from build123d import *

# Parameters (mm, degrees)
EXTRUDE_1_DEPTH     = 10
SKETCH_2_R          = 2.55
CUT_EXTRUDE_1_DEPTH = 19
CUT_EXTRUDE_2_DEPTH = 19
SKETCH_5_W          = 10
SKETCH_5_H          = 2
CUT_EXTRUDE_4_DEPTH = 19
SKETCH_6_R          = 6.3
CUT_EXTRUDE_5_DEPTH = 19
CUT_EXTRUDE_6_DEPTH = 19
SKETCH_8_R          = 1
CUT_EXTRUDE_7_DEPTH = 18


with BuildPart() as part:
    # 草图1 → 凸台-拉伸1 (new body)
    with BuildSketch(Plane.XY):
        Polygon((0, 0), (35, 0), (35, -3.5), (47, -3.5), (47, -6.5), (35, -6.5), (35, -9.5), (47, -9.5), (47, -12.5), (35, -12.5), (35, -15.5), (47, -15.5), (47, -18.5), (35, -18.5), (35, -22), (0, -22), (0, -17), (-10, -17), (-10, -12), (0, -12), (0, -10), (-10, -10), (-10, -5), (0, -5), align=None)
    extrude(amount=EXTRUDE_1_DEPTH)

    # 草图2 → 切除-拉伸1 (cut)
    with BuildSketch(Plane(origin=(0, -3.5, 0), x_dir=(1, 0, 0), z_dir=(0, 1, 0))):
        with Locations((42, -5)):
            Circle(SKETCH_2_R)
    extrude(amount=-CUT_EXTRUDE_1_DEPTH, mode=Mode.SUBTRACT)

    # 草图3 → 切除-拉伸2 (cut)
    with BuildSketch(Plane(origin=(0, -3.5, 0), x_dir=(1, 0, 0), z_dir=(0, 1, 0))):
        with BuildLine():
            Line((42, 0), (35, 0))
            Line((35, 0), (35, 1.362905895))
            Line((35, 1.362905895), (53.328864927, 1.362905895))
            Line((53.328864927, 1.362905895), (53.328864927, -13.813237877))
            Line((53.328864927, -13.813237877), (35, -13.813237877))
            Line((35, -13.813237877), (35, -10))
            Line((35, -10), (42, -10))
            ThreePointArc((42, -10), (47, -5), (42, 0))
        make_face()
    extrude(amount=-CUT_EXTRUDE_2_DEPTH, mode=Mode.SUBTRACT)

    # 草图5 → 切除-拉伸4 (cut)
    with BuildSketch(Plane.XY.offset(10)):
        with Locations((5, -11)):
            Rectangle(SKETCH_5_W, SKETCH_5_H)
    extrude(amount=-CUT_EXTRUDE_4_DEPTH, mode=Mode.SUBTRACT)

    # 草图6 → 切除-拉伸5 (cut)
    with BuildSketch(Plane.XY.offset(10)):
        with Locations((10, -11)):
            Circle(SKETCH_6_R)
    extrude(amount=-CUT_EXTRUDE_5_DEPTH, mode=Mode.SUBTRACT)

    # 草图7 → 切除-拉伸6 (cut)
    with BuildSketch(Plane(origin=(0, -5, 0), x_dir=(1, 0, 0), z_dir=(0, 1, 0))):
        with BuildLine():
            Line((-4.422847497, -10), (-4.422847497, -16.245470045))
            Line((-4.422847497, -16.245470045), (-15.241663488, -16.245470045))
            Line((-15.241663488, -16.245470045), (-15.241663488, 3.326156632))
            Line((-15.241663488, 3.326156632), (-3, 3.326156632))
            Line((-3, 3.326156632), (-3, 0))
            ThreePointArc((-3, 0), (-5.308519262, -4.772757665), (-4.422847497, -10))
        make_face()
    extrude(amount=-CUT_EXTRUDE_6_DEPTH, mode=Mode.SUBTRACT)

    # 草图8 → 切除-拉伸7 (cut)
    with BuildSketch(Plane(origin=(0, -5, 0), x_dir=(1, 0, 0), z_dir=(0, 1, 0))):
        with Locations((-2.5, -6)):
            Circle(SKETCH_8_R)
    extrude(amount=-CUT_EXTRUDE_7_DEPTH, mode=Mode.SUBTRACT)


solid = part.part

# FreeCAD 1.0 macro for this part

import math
import FreeCAD as App
import Part
import Sketcher

V = App.Vector
Q = App.Units.Quantity


def add_polygon(sketch, points):
    """Adds a closed chain of lines whose ends are joined by coincident constraints."""
    first, n = sketch.GeometryCount, len(points)
    for a, b in zip(points, points[1:] + points[:1]):
        sketch.addGeometry(Part.LineSegment(App.Vector(*a, 0), App.Vector(*b, 0)), False)
    for i in range(n):
        sketch.addConstraint(Sketcher.Constraint("Coincident", first + i, 2, first + (i + 1) % n, 1))

doc = App.newDocument("Part")
body = doc.addObject("PartDesign::Body", "Body")

# Sketch on XY plane
sketch1 = doc.addObject("Sketcher::SketchObject", "Sketch")
body.addObject(sketch1)
sketch1.AttachmentSupport = (doc.XY_Plane, [""])
sketch1.MapMode = "FlatFace"
add_polygon(sketch1, [(35, 0), (0, 0), (0, -5), (-10, -5), (-10, -10), (0, -10), (0, -12), (-10, -12), (-10, -17), (0, -17), (0, -22), (35, -22), (35, -18.5), (47, -18.5), (47, -15.5), (35, -15.5), (35, -12.5), (47, -12.5), (47, -9.5), (35, -9.5), (35, -6.5), (47, -6.5), (47, -3.5), (35, -3.5)])  # lines 0-23
sketch1.addConstraint(Sketcher.Constraint("Horizontal", 0))
sketch1.addConstraint(Sketcher.Constraint("Vertical", 1))
sketch1.addConstraint(Sketcher.Constraint("Horizontal", 2))
sketch1.addConstraint(Sketcher.Constraint("Vertical", 3))
sketch1.addConstraint(Sketcher.Constraint("Horizontal", 4))
sketch1.addConstraint(Sketcher.Constraint("Vertical", 5))
sketch1.addConstraint(Sketcher.Constraint("Horizontal", 6))
sketch1.addConstraint(Sketcher.Constraint("Vertical", 7))
sketch1.addConstraint(Sketcher.Constraint("Horizontal", 8))
sketch1.addConstraint(Sketcher.Constraint("Vertical", 9))
sketch1.addConstraint(Sketcher.Constraint("Horizontal", 10))
sketch1.addConstraint(Sketcher.Constraint("Vertical", 11))
sketch1.addConstraint(Sketcher.Constraint("Horizontal", 12))
sketch1.addConstraint(Sketcher.Constraint("Vertical", 13))
sketch1.addConstraint(Sketcher.Constraint("Horizontal", 14))
sketch1.addConstraint(Sketcher.Constraint("Vertical", 15))
sketch1.addConstraint(Sketcher.Constraint("Horizontal", 16))
sketch1.addConstraint(Sketcher.Constraint("Vertical", 17))
sketch1.addConstraint(Sketcher.Constraint("Horizontal", 18))
sketch1.addConstraint(Sketcher.Constraint("Vertical", 19))
sketch1.addConstraint(Sketcher.Constraint("Horizontal", 20))
sketch1.addConstraint(Sketcher.Constraint("Vertical", 21))
sketch1.addConstraint(Sketcher.Constraint("Horizontal", 22))
sketch1.addConstraint(Sketcher.Constraint("Vertical", 23))
sketch1.addConstraint(Sketcher.Constraint("Coincident", 0, 2, -1, 1))
sketch1.addConstraint(Sketcher.Constraint("PointOnObject", 4, 2, -2))
sketch1.addConstraint(Sketcher.Constraint("PointOnObject", 8, 2, -2))
sketch1.addConstraint(Sketcher.Constraint("Vertical", 3, 2, 6, 2))
sketch1.addConstraint(Sketcher.Constraint("Vertical", 11, 2, 14, 2))
sketch1.addConstraint(Sketcher.Constraint("Vertical", 13, 2, 16, 2))
sketch1.addConstraint(Sketcher.Constraint("Vertical", 15, 2, 18, 2))
sketch1.addConstraint(Sketcher.Constraint("Vertical", 17, 2, 20, 2))
sketch1.addConstraint(Sketcher.Constraint("Vertical", 19, 2, 22, 2))
sketch1.addConstraint(Sketcher.Constraint("Equal", 1, 3))
sketch1.addConstraint(Sketcher.Constraint("Equal", 3, 7))
sketch1.addConstraint(Sketcher.Constraint("Equal", 7, 9))
sketch1.addConstraint(Sketcher.Constraint("Equal", 13, 15))
sketch1.addConstraint(Sketcher.Constraint("Equal", 15, 17))
sketch1.addConstraint(Sketcher.Constraint("Equal", 17, 19))
sketch1.addConstraint(Sketcher.Constraint("Equal", 19, 21))
sketch1.addConstraint(Sketcher.Constraint("Equal", 11, 23))
sketch1.addConstraint(Sketcher.Constraint("DistanceX", 0, 2, 0, 1, Q("35 mm")))
sketch1.addConstraint(Sketcher.Constraint("DistanceX", 2, 2, 2, 1, Q("10 mm")))
sketch1.addConstraint(Sketcher.Constraint("DistanceX", 12, 1, 12, 2, Q("12 mm")))
sketch1.addConstraint(Sketcher.Constraint("DistanceY", 1, 2, 1, 1, Q("5 mm")))
sketch1.addConstraint(Sketcher.Constraint("DistanceY", 5, 2, 5, 1, Q("2 mm")))
sketch1.addConstraint(Sketcher.Constraint("DistanceY", 13, 1, 13, 2, Q("3 mm")))
pad1 = doc.addObject("PartDesign::Pad", "Pad")
body.addObject(pad1)
pad1.Profile = sketch1
pad1.Length = 10

# Sketch on XZ plane
sketch2 = doc.addObject("Sketcher::SketchObject", "Sketch001")
body.addObject(sketch2)
sketch2.AttachmentSupport = (doc.XZ_Plane, [""])
sketch2.MapMode = "FlatFace"
sketch2.AttachmentOffset = App.Placement(V(0, 0, 3.5), App.Rotation())
sketch2.addGeometry(Part.Circle(V(42, 5, 0), V(0, 0, 1), 2.55), False)
sketch2.addConstraint(Sketcher.Constraint("Diameter", 0, Q("5.1 mm")))
sketch2.addConstraint(Sketcher.Constraint("DistanceX", -1, 1, 0, 3, Q("42 mm")))
sketch2.addConstraint(Sketcher.Constraint("DistanceY", -1, 1, 0, 3, Q("5 mm")))
pocket1 = doc.addObject("PartDesign::Pocket", "Pocket")
body.addObject(pocket1)
pocket1.Profile = sketch2
pocket1.Length = 19
pocket1.Reversed = True

# Sketch on XZ plane
sketch3 = doc.addObject("Sketcher::SketchObject", "Sketch002")
body.addObject(sketch3)
sketch3.AttachmentSupport = (doc.XZ_Plane, [""])
sketch3.MapMode = "FlatFace"
sketch3.AttachmentOffset = App.Placement(V(0, 0, 3.5), App.Rotation())
sketch3.addGeometry(Part.LineSegment(V(35, 0, 0), V(42, 0, 0)), False)
sketch3.addGeometry(Part.ArcOfCircle(Part.Circle(V(42, 5, 0), V(0, 0, 1), 5), math.radians(-90), math.radians(90)), False)
sketch3.addGeometry(Part.LineSegment(V(42, 10, 0), V(35, 10, 0)), False)
sketch3.addGeometry(Part.LineSegment(V(35, 10, 0), V(35, 13.813238, 0)), False)
sketch3.addGeometry(Part.LineSegment(V(35, 13.813238, 0), V(53.328865, 13.813238, 0)), False)
sketch3.addGeometry(Part.LineSegment(V(53.328865, 13.813238, 0), V(53.328865, -1.362906, 0)), False)
sketch3.addGeometry(Part.LineSegment(V(53.328865, -1.362906, 0), V(35, -1.362906, 0)), False)
sketch3.addGeometry(Part.LineSegment(V(35, -1.362906, 0), V(35, 0, 0)), False)
sketch3.addConstraint(Sketcher.Constraint("Tangent", 0, 2, 1, 1))
sketch3.addConstraint(Sketcher.Constraint("Tangent", 1, 2, 2, 1))
sketch3.addConstraint(Sketcher.Constraint("Coincident", 2, 2, 3, 1))
sketch3.addConstraint(Sketcher.Constraint("Coincident", 3, 2, 4, 1))
sketch3.addConstraint(Sketcher.Constraint("Coincident", 4, 2, 5, 1))
sketch3.addConstraint(Sketcher.Constraint("Coincident", 5, 2, 6, 1))
sketch3.addConstraint(Sketcher.Constraint("Coincident", 6, 2, 7, 1))
sketch3.addConstraint(Sketcher.Constraint("Coincident", 7, 2, 0, 1))
sketch3.addConstraint(Sketcher.Constraint("Horizontal", 0))
sketch3.addConstraint(Sketcher.Constraint("Horizontal", 2))
sketch3.addConstraint(Sketcher.Constraint("Vertical", 3))
sketch3.addConstraint(Sketcher.Constraint("Horizontal", 4))
sketch3.addConstraint(Sketcher.Constraint("Vertical", 5))
sketch3.addConstraint(Sketcher.Constraint("Horizontal", 6))
sketch3.addConstraint(Sketcher.Constraint("Vertical", 7))
sketch3.addConstraint(Sketcher.Constraint("PointOnObject", 0, 2, -1))
sketch3.addConstraint(Sketcher.Constraint("Vertical", 3, 2, 6, 2))
sketch3.addConstraint(Sketcher.Constraint("Radius", 1, Q("5 mm")))
sketch3.addConstraint(Sketcher.Constraint("DistanceX", 0, 1, 0, 2, Q("7 mm")))
sketch3.addConstraint(Sketcher.Constraint("DistanceX", -1, 1, 1, 3, Q("42 mm")))
sketch3.addConstraint(Sketcher.Constraint("DistanceX", 4, 1, 4, 2, Q("18.328865 mm")))
sketch3.addConstraint(Sketcher.Constraint("DistanceY", 3, 1, 3, 2, Q("3.813238 mm")))
sketch3.addConstraint(Sketcher.Constraint("DistanceY", 5, 2, 5, 1, Q("15.176144 mm")))
pocket2 = doc.addObject("PartDesign::Pocket", "Pocket001")
body.addObject(pocket2)
pocket2.Profile = sketch3
pocket2.Length = 19
pocket2.Reversed = True

# Sketch on XY plane
sketch4 = doc.addObject("Sketcher::SketchObject", "Sketch003")
body.addObject(sketch4)
sketch4.AttachmentSupport = (doc.XY_Plane, [""])
sketch4.MapMode = "FlatFace"
sketch4.AttachmentOffset = App.Placement(V(0, 0, 10), App.Rotation())
add_polygon(sketch4, [(0, -10), (0, -12), (10, -12), (10, -10)])  # lines 0-3
sketch4.addConstraint(Sketcher.Constraint("Vertical", 0))
sketch4.addConstraint(Sketcher.Constraint("Horizontal", 1))
sketch4.addConstraint(Sketcher.Constraint("Vertical", 2))
sketch4.addConstraint(Sketcher.Constraint("Horizontal", 3))
sketch4.addConstraint(Sketcher.Constraint("PointOnObject", 0, 2, -2))
sketch4.addConstraint(Sketcher.Constraint("DistanceX", 1, 1, 1, 2, Q("10 mm")))
sketch4.addConstraint(Sketcher.Constraint("DistanceY", 0, 2, 0, 1, Q("2 mm")))
sketch4.addConstraint(Sketcher.Constraint("DistanceY", 0, 2, -1, 1, Q("12 mm")))
pocket3 = doc.addObject("PartDesign::Pocket", "Pocket002")
body.addObject(pocket3)
pocket3.Profile = sketch4
pocket3.Length = 19

# Sketch on XY plane
sketch5 = doc.addObject("Sketcher::SketchObject", "Sketch004")
body.addObject(sketch5)
sketch5.AttachmentSupport = (doc.XY_Plane, [""])
sketch5.MapMode = "FlatFace"
sketch5.AttachmentOffset = App.Placement(V(0, 0, 10), App.Rotation())
sketch5.addGeometry(Part.Circle(V(10, -11, 0), V(0, 0, 1), 6.3), False)
sketch5.addConstraint(Sketcher.Constraint("Diameter", 0, Q("12.6 mm")))
sketch5.addConstraint(Sketcher.Constraint("DistanceX", -1, 1, 0, 3, Q("10 mm")))
sketch5.addConstraint(Sketcher.Constraint("DistanceY", 0, 3, -1, 1, Q("11 mm")))
pocket4 = doc.addObject("PartDesign::Pocket", "Pocket003")
body.addObject(pocket4)
pocket4.Profile = sketch5
pocket4.Length = 19

# Sketch on XZ plane
sketch6 = doc.addObject("Sketcher::SketchObject", "Sketch005")
body.addObject(sketch6)
sketch6.AttachmentSupport = (doc.XZ_Plane, [""])
sketch6.MapMode = "FlatFace"
sketch6.AttachmentOffset = App.Placement(V(0, 0, 5), App.Rotation())
sketch6.addGeometry(Part.LineSegment(V(-4.422847, 16.24547, 0), V(-4.422847, 10, 0)), False)
sketch6.addGeometry(Part.ArcOfCircle(Part.Circle(V(3.316736, 6, 0), V(0, 0, 1), 8.712127), math.radians(152.66901), math.radians(223.52691)), False)
sketch6.addGeometry(Part.LineSegment(V(-3, 0, 0), V(-3, -3.326157, 0)), False)
sketch6.addGeometry(Part.LineSegment(V(-3, -3.326157, 0), V(-15.241663, -3.326157, 0)), False)
sketch6.addGeometry(Part.LineSegment(V(-15.241663, -3.326157, 0), V(-15.241663, 16.24547, 0)), False)
sketch6.addGeometry(Part.LineSegment(V(-15.241663, 16.24547, 0), V(-4.422847, 16.24547, 0)), False)
sketch6.addConstraint(Sketcher.Constraint("Coincident", 0, 2, 1, 1))
sketch6.addConstraint(Sketcher.Constraint("Coincident", 1, 2, 2, 1))
sketch6.addConstraint(Sketcher.Constraint("Coincident", 2, 2, 3, 1))
sketch6.addConstraint(Sketcher.Constraint("Coincident", 3, 2, 4, 1))
sketch6.addConstraint(Sketcher.Constraint("Coincident", 4, 2, 5, 1))
sketch6.addConstraint(Sketcher.Constraint("Coincident", 5, 2, 0, 1))
sketch6.addConstraint(Sketcher.Constraint("Vertical", 0))
sketch6.addConstraint(Sketcher.Constraint("Vertical", 2))
sketch6.addConstraint(Sketcher.Constraint("Horizontal", 3))
sketch6.addConstraint(Sketcher.Constraint("Vertical", 4))
sketch6.addConstraint(Sketcher.Constraint("Horizontal", 5))
sketch6.addConstraint(Sketcher.Constraint("PointOnObject", 1, 2, -1))
sketch6.addConstraint(Sketcher.Constraint("DistanceY", -1, 1, 1, 3, Q("6 mm")))
sketch6.addConstraint(Sketcher.Constraint("DistanceY", -1, 1, 0, 2, Q("10 mm")))
sketch6.addConstraint(Sketcher.Constraint("DistanceX", 1, 2, -1, 1, Q("3 mm")))
sketch6.addConstraint(Sketcher.Constraint("Radius", 1, Q("8.712127 mm")))
sketch6.addConstraint(Sketcher.Constraint("DistanceY", 0, 2, 0, 1, Q("6.24547 mm")))
sketch6.addConstraint(Sketcher.Constraint("DistanceX", 3, 2, 1, 3, Q("18.5584 mm")))
sketch6.addConstraint(Sketcher.Constraint("DistanceY", 2, 2, 2, 1, Q("3.326157 mm")))
pocket5 = doc.addObject("PartDesign::Pocket", "Pocket004")
body.addObject(pocket5)
pocket5.Profile = sketch6
pocket5.Length = 19
pocket5.Reversed = True

# Sketch on XZ plane
sketch7 = doc.addObject("Sketcher::SketchObject", "Sketch006")
body.addObject(sketch7)
sketch7.AttachmentSupport = (doc.XZ_Plane, [""])
sketch7.MapMode = "FlatFace"
sketch7.AttachmentOffset = App.Placement(V(0, 0, 5), App.Rotation())
sketch7.addGeometry(Part.Circle(V(-2.5, 6, 0), V(0, 0, 1), 1), False)
sketch7.addConstraint(Sketcher.Constraint("Diameter", 0, Q("2 mm")))
sketch7.addConstraint(Sketcher.Constraint("DistanceY", -1, 1, 0, 3, Q("6 mm")))
sketch7.addConstraint(Sketcher.Constraint("DistanceX", 0, 3, -1, 1, Q("2.5 mm")))
pocket6 = doc.addObject("PartDesign::Pocket", "Pocket005")
body.addObject(pocket6)
pocket6.Profile = sketch7
pocket6.Length = 18
pocket6.Reversed = True

doc.recompute()
